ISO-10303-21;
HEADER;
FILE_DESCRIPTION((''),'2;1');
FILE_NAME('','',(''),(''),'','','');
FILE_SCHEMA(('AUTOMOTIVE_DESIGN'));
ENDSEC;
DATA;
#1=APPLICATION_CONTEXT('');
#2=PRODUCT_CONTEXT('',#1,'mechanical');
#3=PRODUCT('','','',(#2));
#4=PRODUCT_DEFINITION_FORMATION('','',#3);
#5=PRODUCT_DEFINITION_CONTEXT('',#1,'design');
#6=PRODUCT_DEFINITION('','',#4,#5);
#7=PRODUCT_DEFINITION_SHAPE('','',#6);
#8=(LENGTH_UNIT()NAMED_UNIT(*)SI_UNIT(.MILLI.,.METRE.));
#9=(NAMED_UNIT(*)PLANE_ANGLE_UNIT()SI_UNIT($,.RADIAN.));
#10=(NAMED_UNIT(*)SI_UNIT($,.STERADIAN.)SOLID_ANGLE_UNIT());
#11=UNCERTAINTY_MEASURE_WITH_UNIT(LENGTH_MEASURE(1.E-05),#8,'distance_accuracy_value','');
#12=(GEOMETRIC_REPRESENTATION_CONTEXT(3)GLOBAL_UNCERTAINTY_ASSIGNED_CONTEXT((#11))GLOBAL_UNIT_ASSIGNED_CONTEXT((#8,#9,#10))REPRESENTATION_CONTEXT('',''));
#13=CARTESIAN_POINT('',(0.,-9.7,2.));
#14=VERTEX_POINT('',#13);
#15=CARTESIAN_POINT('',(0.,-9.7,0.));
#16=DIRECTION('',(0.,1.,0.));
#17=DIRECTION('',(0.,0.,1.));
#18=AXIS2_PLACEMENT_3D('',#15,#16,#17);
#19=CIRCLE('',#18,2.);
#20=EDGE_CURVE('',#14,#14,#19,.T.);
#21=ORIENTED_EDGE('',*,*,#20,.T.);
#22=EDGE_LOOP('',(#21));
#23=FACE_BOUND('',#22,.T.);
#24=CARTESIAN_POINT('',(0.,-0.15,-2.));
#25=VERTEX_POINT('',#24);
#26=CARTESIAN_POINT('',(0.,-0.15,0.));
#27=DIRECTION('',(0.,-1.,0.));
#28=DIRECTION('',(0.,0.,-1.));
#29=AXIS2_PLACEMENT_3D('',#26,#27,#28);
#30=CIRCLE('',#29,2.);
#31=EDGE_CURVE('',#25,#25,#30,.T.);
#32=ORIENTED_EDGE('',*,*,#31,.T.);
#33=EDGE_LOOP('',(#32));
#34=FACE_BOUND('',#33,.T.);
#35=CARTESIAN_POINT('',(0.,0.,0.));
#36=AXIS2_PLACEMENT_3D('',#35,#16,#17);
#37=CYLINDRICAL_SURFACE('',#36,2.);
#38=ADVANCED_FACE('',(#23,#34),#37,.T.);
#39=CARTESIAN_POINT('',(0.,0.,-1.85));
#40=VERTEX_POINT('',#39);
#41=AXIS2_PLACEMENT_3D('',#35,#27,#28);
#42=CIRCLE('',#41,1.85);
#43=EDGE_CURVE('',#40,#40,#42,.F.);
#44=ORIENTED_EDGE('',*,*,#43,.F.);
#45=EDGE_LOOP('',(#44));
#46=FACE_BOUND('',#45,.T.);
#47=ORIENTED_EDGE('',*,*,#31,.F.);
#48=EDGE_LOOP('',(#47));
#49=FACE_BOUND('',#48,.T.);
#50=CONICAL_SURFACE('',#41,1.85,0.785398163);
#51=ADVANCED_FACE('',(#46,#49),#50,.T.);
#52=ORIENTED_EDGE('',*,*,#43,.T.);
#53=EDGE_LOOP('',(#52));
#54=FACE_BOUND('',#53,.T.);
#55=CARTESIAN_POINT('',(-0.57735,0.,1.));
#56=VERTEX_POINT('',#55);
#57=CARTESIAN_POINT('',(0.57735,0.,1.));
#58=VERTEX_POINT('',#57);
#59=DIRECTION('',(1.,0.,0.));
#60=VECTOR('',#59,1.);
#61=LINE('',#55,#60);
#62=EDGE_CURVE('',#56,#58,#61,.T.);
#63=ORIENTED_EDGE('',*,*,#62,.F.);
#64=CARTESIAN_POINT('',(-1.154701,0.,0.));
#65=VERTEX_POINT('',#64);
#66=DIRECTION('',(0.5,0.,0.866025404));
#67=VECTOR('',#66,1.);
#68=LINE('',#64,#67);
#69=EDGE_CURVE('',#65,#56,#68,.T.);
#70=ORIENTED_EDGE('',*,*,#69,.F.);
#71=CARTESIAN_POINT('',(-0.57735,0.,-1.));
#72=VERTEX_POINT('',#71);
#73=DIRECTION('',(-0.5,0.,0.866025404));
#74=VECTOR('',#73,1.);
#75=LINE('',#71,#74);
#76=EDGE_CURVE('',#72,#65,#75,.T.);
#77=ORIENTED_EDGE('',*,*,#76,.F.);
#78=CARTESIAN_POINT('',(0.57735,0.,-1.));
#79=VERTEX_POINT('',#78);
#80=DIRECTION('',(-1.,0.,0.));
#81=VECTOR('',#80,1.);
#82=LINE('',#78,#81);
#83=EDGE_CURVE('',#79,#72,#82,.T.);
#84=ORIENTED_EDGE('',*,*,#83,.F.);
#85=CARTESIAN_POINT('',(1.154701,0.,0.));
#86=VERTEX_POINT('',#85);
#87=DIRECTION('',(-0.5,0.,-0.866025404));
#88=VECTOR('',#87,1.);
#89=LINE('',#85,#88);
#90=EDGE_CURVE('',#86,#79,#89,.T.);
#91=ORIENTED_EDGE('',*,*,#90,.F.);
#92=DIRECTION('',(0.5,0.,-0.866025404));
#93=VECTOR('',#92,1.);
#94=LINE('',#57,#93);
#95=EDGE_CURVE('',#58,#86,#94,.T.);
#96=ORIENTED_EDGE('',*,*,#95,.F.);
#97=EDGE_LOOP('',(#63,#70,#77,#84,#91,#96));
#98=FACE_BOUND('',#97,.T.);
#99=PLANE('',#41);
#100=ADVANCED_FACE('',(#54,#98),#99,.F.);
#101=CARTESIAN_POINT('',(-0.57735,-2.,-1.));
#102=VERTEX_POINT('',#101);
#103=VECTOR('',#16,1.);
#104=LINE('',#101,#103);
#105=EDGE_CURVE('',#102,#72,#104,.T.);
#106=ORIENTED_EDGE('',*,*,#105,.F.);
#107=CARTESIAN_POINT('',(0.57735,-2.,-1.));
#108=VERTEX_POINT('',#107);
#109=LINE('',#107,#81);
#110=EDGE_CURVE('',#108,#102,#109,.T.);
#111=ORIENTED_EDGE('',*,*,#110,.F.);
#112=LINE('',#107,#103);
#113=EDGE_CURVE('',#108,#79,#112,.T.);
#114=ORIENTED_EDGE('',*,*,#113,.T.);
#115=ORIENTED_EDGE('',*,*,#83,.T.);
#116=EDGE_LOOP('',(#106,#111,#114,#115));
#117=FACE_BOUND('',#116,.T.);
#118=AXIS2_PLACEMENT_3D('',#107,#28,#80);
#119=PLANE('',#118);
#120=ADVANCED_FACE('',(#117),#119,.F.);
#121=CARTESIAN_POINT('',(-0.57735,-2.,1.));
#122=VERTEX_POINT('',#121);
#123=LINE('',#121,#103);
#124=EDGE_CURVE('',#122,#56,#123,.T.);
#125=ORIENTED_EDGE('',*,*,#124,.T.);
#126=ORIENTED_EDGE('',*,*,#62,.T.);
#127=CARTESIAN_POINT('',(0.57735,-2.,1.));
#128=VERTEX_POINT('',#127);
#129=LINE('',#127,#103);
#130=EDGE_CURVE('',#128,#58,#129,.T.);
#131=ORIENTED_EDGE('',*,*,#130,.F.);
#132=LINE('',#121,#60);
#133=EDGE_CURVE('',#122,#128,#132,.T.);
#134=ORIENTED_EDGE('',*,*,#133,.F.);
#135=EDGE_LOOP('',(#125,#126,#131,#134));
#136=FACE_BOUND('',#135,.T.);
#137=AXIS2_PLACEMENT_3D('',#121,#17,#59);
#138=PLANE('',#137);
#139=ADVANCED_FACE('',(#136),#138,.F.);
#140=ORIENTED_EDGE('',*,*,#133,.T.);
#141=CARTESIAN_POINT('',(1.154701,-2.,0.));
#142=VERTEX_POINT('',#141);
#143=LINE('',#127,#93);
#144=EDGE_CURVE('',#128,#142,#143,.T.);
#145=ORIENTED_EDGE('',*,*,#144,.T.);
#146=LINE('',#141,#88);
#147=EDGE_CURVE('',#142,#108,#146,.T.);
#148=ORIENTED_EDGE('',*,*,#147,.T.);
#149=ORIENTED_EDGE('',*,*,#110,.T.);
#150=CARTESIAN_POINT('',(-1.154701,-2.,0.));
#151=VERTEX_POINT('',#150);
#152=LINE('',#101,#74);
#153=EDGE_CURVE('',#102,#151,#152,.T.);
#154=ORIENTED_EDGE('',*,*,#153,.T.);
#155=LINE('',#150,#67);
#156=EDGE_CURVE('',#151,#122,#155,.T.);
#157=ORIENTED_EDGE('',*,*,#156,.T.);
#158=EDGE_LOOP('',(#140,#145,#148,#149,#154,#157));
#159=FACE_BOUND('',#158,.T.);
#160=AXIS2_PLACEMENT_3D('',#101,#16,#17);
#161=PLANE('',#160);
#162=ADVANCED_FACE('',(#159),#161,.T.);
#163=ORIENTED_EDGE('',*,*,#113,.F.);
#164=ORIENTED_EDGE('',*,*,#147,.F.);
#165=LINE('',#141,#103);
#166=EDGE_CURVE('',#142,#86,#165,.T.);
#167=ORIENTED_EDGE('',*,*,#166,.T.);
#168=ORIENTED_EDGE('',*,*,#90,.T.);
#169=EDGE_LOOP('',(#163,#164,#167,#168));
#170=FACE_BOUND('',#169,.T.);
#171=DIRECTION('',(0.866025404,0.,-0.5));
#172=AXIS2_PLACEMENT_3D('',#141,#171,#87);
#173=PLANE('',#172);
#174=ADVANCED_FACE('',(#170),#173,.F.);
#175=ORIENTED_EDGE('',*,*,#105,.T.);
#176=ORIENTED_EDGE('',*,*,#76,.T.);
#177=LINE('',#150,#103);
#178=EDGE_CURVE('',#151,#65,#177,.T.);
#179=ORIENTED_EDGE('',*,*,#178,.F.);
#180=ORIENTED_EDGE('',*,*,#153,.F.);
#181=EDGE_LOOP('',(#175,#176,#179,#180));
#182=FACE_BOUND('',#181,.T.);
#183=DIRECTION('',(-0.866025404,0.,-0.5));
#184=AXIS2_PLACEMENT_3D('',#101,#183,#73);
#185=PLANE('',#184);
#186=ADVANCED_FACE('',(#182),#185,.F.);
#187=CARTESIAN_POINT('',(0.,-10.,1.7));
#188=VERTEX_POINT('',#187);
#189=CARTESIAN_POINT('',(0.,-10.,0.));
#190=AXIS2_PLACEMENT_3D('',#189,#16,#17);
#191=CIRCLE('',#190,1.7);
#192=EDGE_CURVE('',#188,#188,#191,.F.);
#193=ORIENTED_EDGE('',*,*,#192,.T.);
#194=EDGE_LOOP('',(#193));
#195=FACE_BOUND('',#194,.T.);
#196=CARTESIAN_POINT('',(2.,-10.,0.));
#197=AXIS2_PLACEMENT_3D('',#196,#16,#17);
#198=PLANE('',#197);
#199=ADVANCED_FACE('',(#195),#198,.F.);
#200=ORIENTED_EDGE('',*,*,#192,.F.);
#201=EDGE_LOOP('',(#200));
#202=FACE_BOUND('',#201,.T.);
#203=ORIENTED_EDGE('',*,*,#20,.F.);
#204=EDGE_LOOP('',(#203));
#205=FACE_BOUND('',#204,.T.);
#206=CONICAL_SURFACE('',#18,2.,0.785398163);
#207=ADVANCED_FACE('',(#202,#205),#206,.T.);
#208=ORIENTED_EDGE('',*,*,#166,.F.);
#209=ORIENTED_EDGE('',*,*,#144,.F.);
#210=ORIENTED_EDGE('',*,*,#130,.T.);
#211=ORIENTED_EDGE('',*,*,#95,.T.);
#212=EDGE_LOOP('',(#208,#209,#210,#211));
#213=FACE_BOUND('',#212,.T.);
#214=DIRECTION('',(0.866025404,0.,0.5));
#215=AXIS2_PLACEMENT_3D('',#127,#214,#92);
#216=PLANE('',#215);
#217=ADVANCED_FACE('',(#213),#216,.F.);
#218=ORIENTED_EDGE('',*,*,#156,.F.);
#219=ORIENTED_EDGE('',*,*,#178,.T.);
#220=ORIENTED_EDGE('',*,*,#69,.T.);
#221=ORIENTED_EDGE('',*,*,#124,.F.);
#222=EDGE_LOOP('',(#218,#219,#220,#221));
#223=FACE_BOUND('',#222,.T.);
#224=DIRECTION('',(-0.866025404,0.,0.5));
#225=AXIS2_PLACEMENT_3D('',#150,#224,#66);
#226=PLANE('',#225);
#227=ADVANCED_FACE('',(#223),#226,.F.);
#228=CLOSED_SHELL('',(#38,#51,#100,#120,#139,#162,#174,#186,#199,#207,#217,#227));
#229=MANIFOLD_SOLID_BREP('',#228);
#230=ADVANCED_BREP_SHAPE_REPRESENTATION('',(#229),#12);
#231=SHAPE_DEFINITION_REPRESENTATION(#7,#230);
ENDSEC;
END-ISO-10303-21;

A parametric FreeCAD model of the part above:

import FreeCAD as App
import Part
import Sketcher

V = App.Vector
Q = App.Units.Quantity


def edges_at(feature, points):
    """Names of the edges that pass closest to the given points."""
    edges = feature.Shape.Edges
    near = lambda p: min(range(len(edges)), key=lambda i: edges[i].distToShape(Part.Vertex(*p))[0])
    return sorted({f"Edge{near(p) + 1}" for p in points})


def add_polygon(sketch, points):
    """Adds a closed chain of lines whose ends are joined by coincident constraints."""
    first, n = sketch.GeometryCount, len(points)
    for a, b in zip(points, points[1:] + points[:1]):
        sketch.addGeometry(Part.LineSegment(App.Vector(*a, 0), App.Vector(*b, 0)), False)
    for i in range(n):
        sketch.addConstraint(Sketcher.Constraint("Coincident", first + i, 2, first + (i + 1) % n, 1))

doc = App.newDocument("Part")
body = doc.addObject("PartDesign::Body", "Body")

# Sketch on XY plane
sketch1 = body.newObject("Sketcher::SketchObject", "Sketch")
sketch1.AttachmentSupport = (doc.getObject("XY_Plane"), [""])
sketch1.MapMode = "FlatFace"
add_polygon(sketch1, [(0, 0), (0, -10), (2, -10), (2, 0)])  # lines 0-3
sketch1.addConstraint([
    Sketcher.Constraint("Vertical", 0),
    Sketcher.Constraint("Horizontal", 1),
    Sketcher.Constraint("Vertical", 2),
    Sketcher.Constraint("Horizontal", 3),
    Sketcher.Constraint("Coincident", 3, 2, -1, 1),
    Sketcher.Constraint("DistanceX", 1, 1, 1, 2, Q("2 mm")),
    Sketcher.Constraint("DistanceY", 0, 2, 0, 1, Q("10 mm")),
])
revolution = body.newObject("PartDesign::Revolution", "Revolution")
revolution.Profile = sketch1
revolution.ReferenceAxis = (sketch1, ["V_Axis"])
revolution.Angle = 360

# Sketch on XZ plane
sketch2 = body.newObject("Sketcher::SketchObject", "Sketch001")
sketch2.AttachmentSupport = (doc.getObject("XZ_Plane"), [""])
sketch2.MapMode = "FlatFace"
add_polygon(sketch2, [(-0.6, -1), (-1.2, 0), (-0.6, 1), (0.6, 1), (1.2, 0), (0.6, -1)])  # lines 0-5
sketch2.addConstraint([
    Sketcher.Constraint("Horizontal", 2),
    Sketcher.Constraint("Horizontal", 5),
    Sketcher.Constraint("Symmetric", 0, 2, 3, 2, -1, 1),
    Sketcher.Constraint("Symmetric", 1, 2, 4, 2, -1, 1),
    Sketcher.Constraint("PointOnObject", 0, 2, -1),
    Sketcher.Constraint("Parallel", 0, 3),
    Sketcher.Constraint("Vertical", 2, 2, 4, 2),
    Sketcher.Constraint("Angle", 0, Q("120 deg")),
    Sketcher.Constraint("DistanceY", -1, 1, 1, 2, Q("1 mm")),
    Sketcher.Constraint("DistanceX", 2, 1, 2, 2, Q("1.154701 mm")),
])
pocket1 = body.newObject("PartDesign::Pocket", "Pocket")
pocket1.Profile = sketch2
pocket1.Length = 2
pocket1.Reversed = True
doc.recompute()

chamfer = body.newObject("PartDesign::Chamfer", "Chamfer")
chamfer.Base = (pocket1, edges_at(pocket1, [(0, -10, -2)]))
chamfer.Size = 0.3
doc.recompute()

chamfer2 = body.newObject("PartDesign::Chamfer", "Chamfer001")
chamfer2.Base = (chamfer, edges_at(chamfer, [(0, 0, -2)]))
chamfer2.Size = 0.15

doc.recompute()
